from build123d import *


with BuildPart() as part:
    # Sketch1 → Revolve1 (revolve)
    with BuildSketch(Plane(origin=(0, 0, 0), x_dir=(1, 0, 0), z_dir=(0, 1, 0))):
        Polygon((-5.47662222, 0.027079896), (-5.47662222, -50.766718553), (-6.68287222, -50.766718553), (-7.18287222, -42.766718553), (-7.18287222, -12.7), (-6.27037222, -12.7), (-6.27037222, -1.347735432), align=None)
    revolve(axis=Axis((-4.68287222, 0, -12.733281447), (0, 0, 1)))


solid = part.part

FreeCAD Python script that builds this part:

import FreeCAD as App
import Part
import Sketcher
Q = App.Units.Quantity


def add_polygon(sketch, points):
    """Adds a closed chain of lines whose ends are joined by coincident constraints."""
    first, n = sketch.GeometryCount, len(points)
    for a, b in zip(points, points[1:] + points[:1]):
        sketch.addGeometry(Part.LineSegment(App.Vector(*a, 0), App.Vector(*b, 0)), False)
    for i in range(n):
        sketch.addConstraint(Sketcher.Constraint("Coincident", first + i, 2, first + (i + 1) % n, 1))

doc = App.newDocument("Part")
body = doc.addObject("PartDesign::Body", "Body")

# Sketch on XZ plane
sketch1 = body.newObject("Sketcher::SketchObject", "Sketch")
sketch1.AttachmentSupport = (doc.getObject("XZ_Plane"), [""])
sketch1.MapMode = "FlatFace"
add_polygon(sketch1, [(-5.5, 50.8), (-5.5, 0), (-6.3, 1.3), (-6.3, 12.7), (-7.2, 12.7), (-7.2, 42.8), (-6.7, 50.8)])  # lines 0-6
sketch1.addGeometry(Part.LineSegment(App.Vector(-4.7, 0, 0), App.Vector(-4.7, 50.8, 0)), True)  # axis
sketch1.addConstraint([
    Sketcher.Constraint("Vertical", 0),
    Sketcher.Constraint("Vertical", 2),
    Sketcher.Constraint("Horizontal", 3),
    Sketcher.Constraint("Vertical", 4),
    Sketcher.Constraint("Horizontal", 6),
    Sketcher.Constraint("Vertical", 7),
    Sketcher.Constraint("Horizontal", 0, 2, 7, 1),
    Sketcher.Constraint("Horizontal", 6, 2, 7, 2),
    Sketcher.Constraint("Angle", 1, Q("120 deg")),
    Sketcher.Constraint("DistanceY", -1, 1, 2, 2, Q("0.5 in")),
    Sketcher.Constraint("Distance", 1, Q("0.0625 in")),
    Sketcher.Constraint("DistanceX", 0, 2, 7, 1, Q("0.03125 in")),
    Sketcher.Constraint("DistanceX", 3, 2, 3, 1, Q("0.9125 mm")),
    Sketcher.Constraint("DistanceY", 0, 2, 0, 1, Q("50.793798 mm")),
    Sketcher.Constraint("DistanceX", 6, 1, 6, 2, Q("1.20625 mm")),
    Sketcher.Constraint("DistanceY", 4, 1, 4, 2, Q("30.066719 mm")),
    Sketcher.Constraint("DistanceY", 0, 2, 4, 2, Q("42.793798 mm")),
    Sketcher.Constraint("DistanceX", 0, 2, -1, 1, Q("5.476622 mm")),
])
revolution = body.newObject("PartDesign::Revolution", "Revolution")
revolution.Profile = sketch1
revolution.ReferenceAxis = (sketch1, ["Axis0"])
revolution.Angle = 360

doc.recompute()
